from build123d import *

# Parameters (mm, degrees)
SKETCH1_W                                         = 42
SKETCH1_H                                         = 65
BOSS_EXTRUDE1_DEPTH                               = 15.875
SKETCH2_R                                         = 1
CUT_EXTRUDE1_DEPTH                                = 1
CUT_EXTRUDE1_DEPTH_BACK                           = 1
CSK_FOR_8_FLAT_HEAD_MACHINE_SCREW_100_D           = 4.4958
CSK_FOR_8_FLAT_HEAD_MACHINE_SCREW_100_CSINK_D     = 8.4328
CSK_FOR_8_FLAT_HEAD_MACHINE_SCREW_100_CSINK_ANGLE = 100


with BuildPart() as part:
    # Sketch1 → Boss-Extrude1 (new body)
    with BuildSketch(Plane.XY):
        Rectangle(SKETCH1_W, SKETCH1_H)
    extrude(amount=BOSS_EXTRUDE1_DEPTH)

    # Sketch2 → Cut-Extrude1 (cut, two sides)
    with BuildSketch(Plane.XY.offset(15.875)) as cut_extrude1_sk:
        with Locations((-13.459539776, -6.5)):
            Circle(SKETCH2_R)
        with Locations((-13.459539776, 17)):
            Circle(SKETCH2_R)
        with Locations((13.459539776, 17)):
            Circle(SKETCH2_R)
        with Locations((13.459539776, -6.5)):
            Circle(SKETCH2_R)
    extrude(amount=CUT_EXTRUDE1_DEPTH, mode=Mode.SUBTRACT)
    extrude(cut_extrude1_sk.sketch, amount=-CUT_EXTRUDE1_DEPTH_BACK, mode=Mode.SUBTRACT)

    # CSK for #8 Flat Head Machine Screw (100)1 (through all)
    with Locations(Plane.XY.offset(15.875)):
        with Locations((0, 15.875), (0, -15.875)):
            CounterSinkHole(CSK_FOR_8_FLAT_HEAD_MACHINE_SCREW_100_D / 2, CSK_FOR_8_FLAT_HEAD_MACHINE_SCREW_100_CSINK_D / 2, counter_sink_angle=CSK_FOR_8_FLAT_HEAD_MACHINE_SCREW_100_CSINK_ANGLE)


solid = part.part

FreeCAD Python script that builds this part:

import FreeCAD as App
import Part
import Sketcher
from FreeCAD import Vector


def add_polygon(sketch, points):
    """Adds a closed chain of lines whose ends are joined by coincident constraints."""
    first, n = sketch.GeometryCount, len(points)
    for a, b in zip(points, points[1:] + points[:1]):
        sketch.addGeometry(Part.LineSegment(App.Vector(*a, 0), App.Vector(*b, 0)), False)
    for i in range(n):
        sketch.addConstraint(Sketcher.Constraint("Coincident", first + i, 2, first + (i + 1) % n, 1))

doc = App.newDocument("Part")
body = doc.addObject("PartDesign::Body", "Body")

sketch1 = doc.addObject("Sketcher::SketchObject", "Sketch")
body.addObject(sketch1)
sketch1.AttachmentSupport = (doc.XY_Plane, [""])
sketch1.MapMode = "FlatFace"
add_polygon(sketch1, [(-21, 32), (-21, -32), (21, -32), (21, 32)])
sketch1.addConstraint([
    Sketcher.Constraint("Vertical", 0),
    Sketcher.Constraint("Horizontal", 1),
    Sketcher.Constraint("Vertical", 2),
    Sketcher.Constraint("Horizontal", 3),
    Sketcher.Constraint("Symmetric", 0, 2, 2, 2, -1, 1),
    Sketcher.Constraint("DistanceX", 1, 1, 1, 2, 42.0),
    Sketcher.Constraint("DistanceY", 0, 2, 0, 1, 65.0),
])
pad1 = doc.addObject("PartDesign::Pad", "Pad")
body.addObject(pad1)
pad1.Profile = sketch1
pad1.Length = 15.875

sketch2 = doc.addObject("Sketcher::SketchObject", "Sketch001")
body.addObject(sketch2)
sketch2.AttachmentSupport = (doc.XY_Plane, [""])
sketch2.MapMode = "FlatFace"
sketch2.AttachmentOffset = App.Placement(Vector(0, 0, 15.875), App.Rotation())
sketch2.addGeometry([
    Part.Circle(Vector(-13.5, -6.5, 0), Vector(0, 0, 1), 1),
    Part.Circle(Vector(-13.5, 17, 0), Vector(0, 0, 1), 1),
    Part.Circle(Vector(13.5, 17, 0), Vector(0, 0, 1), 1),
    Part.Circle(Vector(13.5, -6.5, 0), Vector(0, 0, 1), 1),
], False)
sketch2.addConstraint([
    Sketcher.Constraint("Equal", 0, 1),
    Sketcher.Constraint("Equal", 1, 2),
    Sketcher.Constraint("Equal", 2, 3),
    Sketcher.Constraint("Symmetric", 1, 3, 2, 3, -2),
    Sketcher.Constraint("Symmetric", 0, 3, 3, 3, -2),
    Sketcher.Constraint("Vertical", 0, 3, 1, 3),
    Sketcher.Constraint("Diameter", 0, 2.0),
    Sketcher.Constraint("DistanceY", -1, 1, 1, 3, 17.0),
    Sketcher.Constraint("DistanceY", 0, 3, -1, 1, 6.5),
    Sketcher.Constraint("DistanceX", 0, 3, -1, 1, 13.45954),
])
pocket1 = doc.addObject("PartDesign::Pocket", "Pocket")
body.addObject(pocket1)
pocket1.Profile = sketch2
pocket1.Type = "TwoLengths"
pocket1.Length = 1
pocket1.Length2 = 1
pocket1.Reversed = True

sketch3 = doc.addObject("Sketcher::SketchObject", "Sketch002")
body.addObject(sketch3)
sketch3.AttachmentSupport = (doc.XY_Plane, [""])
sketch3.MapMode = "FlatFace"
sketch3.AttachmentOffset = App.Placement(Vector(0, 0, 15.875), App.Rotation())
sketch3.addGeometry([
    Part.Circle(Vector(0, 15.9, 0), Vector(0, 0, 1), 2.2),
    Part.Circle(Vector(0, -15.9, 0), Vector(0, 0, 1), 2.2),
], False)
sketch3.addConstraint([
    Sketcher.Constraint("Equal", 0, 1),
    Sketcher.Constraint("Symmetric", 0, 3, 1, 3, -1, 1),
    Sketcher.Constraint("PointOnObject", 0, 3, -2),
    Sketcher.Constraint("Diameter", 0, 4.4958),
    Sketcher.Constraint("DistanceY", 1, 3, 0, 3, 31.75),
])
doc.recompute()
hole = doc.addObject("PartDesign::Hole", "Hole")
body.addObject(hole)
hole.Profile = sketch3
hole.ThreadType = "None"
hole.Diameter = 4.4958
hole.DepthType = "ThroughAll"
hole.HoleCutType = "Countersink"
hole.HoleCutDiameter = 8.4328
hole.HoleCutCountersinkAngle = 100

doc.recompute()
